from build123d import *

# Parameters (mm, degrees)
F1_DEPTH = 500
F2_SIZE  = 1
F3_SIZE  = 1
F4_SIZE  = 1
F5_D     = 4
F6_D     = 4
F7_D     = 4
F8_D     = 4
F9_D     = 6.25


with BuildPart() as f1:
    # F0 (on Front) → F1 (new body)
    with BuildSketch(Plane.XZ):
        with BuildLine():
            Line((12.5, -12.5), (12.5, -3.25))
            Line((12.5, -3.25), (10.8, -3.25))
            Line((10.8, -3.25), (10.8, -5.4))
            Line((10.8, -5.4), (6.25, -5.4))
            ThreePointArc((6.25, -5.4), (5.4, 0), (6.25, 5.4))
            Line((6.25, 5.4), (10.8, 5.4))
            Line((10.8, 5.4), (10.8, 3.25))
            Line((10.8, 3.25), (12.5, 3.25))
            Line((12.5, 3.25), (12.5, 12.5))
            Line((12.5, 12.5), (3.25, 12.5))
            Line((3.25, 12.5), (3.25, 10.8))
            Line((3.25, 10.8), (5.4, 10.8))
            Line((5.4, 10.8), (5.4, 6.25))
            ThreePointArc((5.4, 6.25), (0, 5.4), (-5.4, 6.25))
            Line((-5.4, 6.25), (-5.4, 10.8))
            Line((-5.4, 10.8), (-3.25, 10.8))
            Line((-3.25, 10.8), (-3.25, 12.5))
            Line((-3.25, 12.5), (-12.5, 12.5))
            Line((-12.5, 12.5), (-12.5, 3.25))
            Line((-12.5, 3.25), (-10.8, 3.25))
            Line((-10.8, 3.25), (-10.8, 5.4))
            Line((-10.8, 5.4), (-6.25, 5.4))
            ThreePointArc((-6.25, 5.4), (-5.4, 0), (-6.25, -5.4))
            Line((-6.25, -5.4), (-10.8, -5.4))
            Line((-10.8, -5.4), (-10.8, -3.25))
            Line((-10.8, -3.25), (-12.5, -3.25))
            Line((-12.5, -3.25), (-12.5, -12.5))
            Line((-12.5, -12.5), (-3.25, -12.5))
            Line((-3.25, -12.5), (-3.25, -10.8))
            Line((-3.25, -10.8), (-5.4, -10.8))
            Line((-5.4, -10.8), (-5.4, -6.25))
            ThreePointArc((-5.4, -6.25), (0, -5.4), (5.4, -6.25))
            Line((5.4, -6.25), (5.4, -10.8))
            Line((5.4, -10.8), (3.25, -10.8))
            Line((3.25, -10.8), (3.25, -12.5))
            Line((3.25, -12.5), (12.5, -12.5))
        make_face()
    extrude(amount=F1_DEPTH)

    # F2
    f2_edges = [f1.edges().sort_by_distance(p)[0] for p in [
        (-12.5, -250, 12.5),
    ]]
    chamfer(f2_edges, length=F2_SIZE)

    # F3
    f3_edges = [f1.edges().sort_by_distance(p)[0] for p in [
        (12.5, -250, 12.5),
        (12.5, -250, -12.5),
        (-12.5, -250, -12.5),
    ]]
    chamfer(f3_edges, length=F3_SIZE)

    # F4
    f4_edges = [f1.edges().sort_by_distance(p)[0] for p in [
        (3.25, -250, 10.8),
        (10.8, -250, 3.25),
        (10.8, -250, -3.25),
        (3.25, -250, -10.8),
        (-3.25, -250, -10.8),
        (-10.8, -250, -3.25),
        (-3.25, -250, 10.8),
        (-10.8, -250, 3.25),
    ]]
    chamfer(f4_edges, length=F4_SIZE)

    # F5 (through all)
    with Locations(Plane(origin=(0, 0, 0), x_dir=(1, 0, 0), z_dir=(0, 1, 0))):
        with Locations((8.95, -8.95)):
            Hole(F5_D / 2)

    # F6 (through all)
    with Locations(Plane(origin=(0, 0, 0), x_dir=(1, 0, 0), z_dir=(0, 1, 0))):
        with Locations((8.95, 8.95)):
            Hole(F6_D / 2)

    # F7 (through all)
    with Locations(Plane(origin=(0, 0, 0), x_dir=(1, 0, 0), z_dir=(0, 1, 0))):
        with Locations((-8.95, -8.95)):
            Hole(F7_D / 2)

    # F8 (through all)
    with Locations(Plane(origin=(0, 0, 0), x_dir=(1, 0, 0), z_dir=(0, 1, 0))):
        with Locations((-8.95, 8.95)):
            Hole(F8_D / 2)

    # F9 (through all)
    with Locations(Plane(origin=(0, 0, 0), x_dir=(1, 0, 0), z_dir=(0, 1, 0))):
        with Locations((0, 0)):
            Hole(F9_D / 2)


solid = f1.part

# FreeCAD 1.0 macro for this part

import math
import FreeCAD as App
import Part
import Sketcher
Q = App.Units.Quantity


def edges_at(feature, points):
    """Names of the edges that pass closest to the given points."""
    edges = feature.Shape.Edges
    near = lambda p: min(range(len(edges)), key=lambda i: edges[i].distToShape(Part.Vertex(*p))[0])
    return sorted({f"Edge{near(p) + 1}" for p in points})

doc = App.newDocument("Part")
params = doc.addObject("Spreadsheet::Sheet", "Params")
for row, (alias, value) in enumerate([
    ("sketch1_width", "1.7 mm"),
    ("sketch1_width2", "4.55 mm"),
    ("sketch1_width3", "2.15 mm"),
    ("pad1_length", "500 mm"),
    ("chamfer_size", "1 mm"),
    ("chamfer2_size", "1 mm"),
    ("chamfer3_size", "1 mm"),
    ("sketch2_diameter", "4 mm"),
    ("hole_diameter", "4 mm"),
    ("sketch3_diameter", "4 mm"),
    ("hole2_diameter", "4 mm"),
    ("sketch4_diameter", "4 mm"),
    ("hole3_diameter", "4 mm"),
    ("sketch5_diameter", "4 mm"),
    ("hole4_diameter", "4 mm"),
    ("sketch6_diameter", "6.25 mm"),
    ("hole5_diameter", "6.25 mm"),
], start=1):
    params.set(f"A{row}", alias)
    params.set(f"B{row}", "=" + value)
    params.setAlias(f"B{row}", alias)

body = doc.addObject("PartDesign::Body", "Body")

sketch1 = body.newObject("Sketcher::SketchObject", "Sketch")
sketch1.AttachmentSupport = (doc.getObject("XZ_Plane"), [""])
sketch1.MapMode = "FlatFace"
sketch1.addGeometry(Part.LineSegment(App.Vector(12.5, -12.5, 0), App.Vector(12.5, -3.2, 0)), False)
sketch1.addGeometry(Part.LineSegment(App.Vector(12.5, -3.2, 0), App.Vector(10.8, -3.2, 0)), False)
sketch1.addGeometry(Part.LineSegment(App.Vector(10.8, -3.2, 0), App.Vector(10.8, -5.4, 0)), False)
sketch1.addGeometry(Part.LineSegment(App.Vector(10.8, -5.4, 0), App.Vector(6.2, -5.4, 0)), False)
sketch1.addGeometry(Part.ArcOfCircle(Part.Circle(App.Vector(23, 0, 0), App.Vector(0, 0, 1), 17.6), math.radians(162), math.radians(198)), False)
sketch1.addGeometry(Part.LineSegment(App.Vector(6.2, 5.4, 0), App.Vector(10.8, 5.4, 0)), False)
sketch1.addGeometry(Part.LineSegment(App.Vector(10.8, 5.4, 0), App.Vector(10.8, 3.2, 0)), False)
sketch1.addGeometry(Part.LineSegment(App.Vector(10.8, 3.2, 0), App.Vector(12.5, 3.2, 0)), False)
sketch1.addGeometry(Part.LineSegment(App.Vector(12.5, 3.2, 0), App.Vector(12.5, 12.5, 0)), False)
sketch1.addGeometry(Part.LineSegment(App.Vector(12.5, 12.5, 0), App.Vector(3.2, 12.5, 0)), False)
sketch1.addGeometry(Part.LineSegment(App.Vector(3.2, 12.5, 0), App.Vector(3.2, 10.8, 0)), False)
sketch1.addGeometry(Part.LineSegment(App.Vector(3.2, 10.8, 0), App.Vector(5.4, 10.8, 0)), False)
sketch1.addGeometry(Part.LineSegment(App.Vector(5.4, 10.8, 0), App.Vector(5.4, 6.2, 0)), False)
sketch1.addGeometry(Part.ArcOfCircle(Part.Circle(App.Vector(0, 23, 0), App.Vector(0, 0, 1), 17.6), math.radians(-108), math.radians(-72)), False)
sketch1.addGeometry(Part.LineSegment(App.Vector(-5.4, 6.2, 0), App.Vector(-5.4, 10.8, 0)), False)
sketch1.addGeometry(Part.LineSegment(App.Vector(-5.4, 10.8, 0), App.Vector(-3.2, 10.8, 0)), False)
sketch1.addGeometry(Part.LineSegment(App.Vector(-3.2, 10.8, 0), App.Vector(-3.2, 12.5, 0)), False)
sketch1.addGeometry(Part.LineSegment(App.Vector(-3.2, 12.5, 0), App.Vector(-12.5, 12.5, 0)), False)
sketch1.addGeometry(Part.LineSegment(App.Vector(-12.5, 12.5, 0), App.Vector(-12.5, 3.2, 0)), False)
sketch1.addGeometry(Part.LineSegment(App.Vector(-12.5, 3.2, 0), App.Vector(-10.8, 3.2, 0)), False)
sketch1.addGeometry(Part.LineSegment(App.Vector(-10.8, 3.2, 0), App.Vector(-10.8, 5.4, 0)), False)
sketch1.addGeometry(Part.LineSegment(App.Vector(-10.8, 5.4, 0), App.Vector(-6.2, 5.4, 0)), False)
sketch1.addGeometry(Part.ArcOfCircle(Part.Circle(App.Vector(-23, 0, 0), App.Vector(0, 0, 1), 17.6), math.radians(-18), math.radians(18)), False)
sketch1.addGeometry(Part.LineSegment(App.Vector(-6.2, -5.4, 0), App.Vector(-10.8, -5.4, 0)), False)
sketch1.addGeometry(Part.LineSegment(App.Vector(-10.8, -5.4, 0), App.Vector(-10.8, -3.2, 0)), False)
sketch1.addGeometry(Part.LineSegment(App.Vector(-10.8, -3.2, 0), App.Vector(-12.5, -3.2, 0)), False)
sketch1.addGeometry(Part.LineSegment(App.Vector(-12.5, -3.2, 0), App.Vector(-12.5, -12.5, 0)), False)
sketch1.addGeometry(Part.LineSegment(App.Vector(-12.5, -12.5, 0), App.Vector(-3.2, -12.5, 0)), False)
sketch1.addGeometry(Part.LineSegment(App.Vector(-3.2, -12.5, 0), App.Vector(-3.2, -10.8, 0)), False)
sketch1.addGeometry(Part.LineSegment(App.Vector(-3.2, -10.8, 0), App.Vector(-5.4, -10.8, 0)), False)
sketch1.addGeometry(Part.LineSegment(App.Vector(-5.4, -10.8, 0), App.Vector(-5.4, -6.2, 0)), False)
sketch1.addGeometry(Part.ArcOfCircle(Part.Circle(App.Vector(0, -23, 0), App.Vector(0, 0, 1), 17.6), math.radians(72), math.radians(108)), False)
sketch1.addGeometry(Part.LineSegment(App.Vector(5.4, -6.2, 0), App.Vector(5.4, -10.8, 0)), False)
sketch1.addGeometry(Part.LineSegment(App.Vector(5.4, -10.8, 0), App.Vector(3.2, -10.8, 0)), False)
sketch1.addGeometry(Part.LineSegment(App.Vector(3.2, -10.8, 0), App.Vector(3.2, -12.5, 0)), False)
sketch1.addGeometry(Part.LineSegment(App.Vector(3.2, -12.5, 0), App.Vector(12.5, -12.5, 0)), False)
sketch1.addConstraint(Sketcher.Constraint("Coincident", 0, 2, 1, 1))
sketch1.addConstraint(Sketcher.Constraint("Coincident", 1, 2, 2, 1))
sketch1.addConstraint(Sketcher.Constraint("Coincident", 2, 2, 3, 1))
sketch1.addConstraint(Sketcher.Constraint("Coincident", 3, 2, 4, 2))
sketch1.addConstraint(Sketcher.Constraint("Coincident", 4, 1, 5, 1))
sketch1.addConstraint(Sketcher.Constraint("Coincident", 5, 2, 6, 1))
sketch1.addConstraint(Sketcher.Constraint("Coincident", 6, 2, 7, 1))
sketch1.addConstraint(Sketcher.Constraint("Coincident", 7, 2, 8, 1))
sketch1.addConstraint(Sketcher.Constraint("Coincident", 8, 2, 9, 1))
sketch1.addConstraint(Sketcher.Constraint("Coincident", 9, 2, 10, 1))
sketch1.addConstraint(Sketcher.Constraint("Coincident", 10, 2, 11, 1))
sketch1.addConstraint(Sketcher.Constraint("Coincident", 11, 2, 12, 1))
sketch1.addConstraint(Sketcher.Constraint("Coincident", 12, 2, 13, 2))
sketch1.addConstraint(Sketcher.Constraint("Coincident", 13, 1, 14, 1))
sketch1.addConstraint(Sketcher.Constraint("Coincident", 14, 2, 15, 1))
sketch1.addConstraint(Sketcher.Constraint("Coincident", 15, 2, 16, 1))
sketch1.addConstraint(Sketcher.Constraint("Coincident", 16, 2, 17, 1))
sketch1.addConstraint(Sketcher.Constraint("Coincident", 17, 2, 18, 1))
sketch1.addConstraint(Sketcher.Constraint("Coincident", 18, 2, 19, 1))
sketch1.addConstraint(Sketcher.Constraint("Coincident", 19, 2, 20, 1))
sketch1.addConstraint(Sketcher.Constraint("Coincident", 20, 2, 21, 1))
sketch1.addConstraint(Sketcher.Constraint("Coincident", 21, 2, 22, 2))
sketch1.addConstraint(Sketcher.Constraint("Coincident", 22, 1, 23, 1))
sketch1.addConstraint(Sketcher.Constraint("Coincident", 23, 2, 24, 1))
sketch1.addConstraint(Sketcher.Constraint("Coincident", 24, 2, 25, 1))
sketch1.addConstraint(Sketcher.Constraint("Coincident", 25, 2, 26, 1))
sketch1.addConstraint(Sketcher.Constraint("Coincident", 26, 2, 27, 1))
sketch1.addConstraint(Sketcher.Constraint("Coincident", 27, 2, 28, 1))
sketch1.addConstraint(Sketcher.Constraint("Coincident", 28, 2, 29, 1))
sketch1.addConstraint(Sketcher.Constraint("Coincident", 29, 2, 30, 1))
sketch1.addConstraint(Sketcher.Constraint("Coincident", 30, 2, 31, 2))
sketch1.addConstraint(Sketcher.Constraint("Coincident", 31, 1, 32, 1))
sketch1.addConstraint(Sketcher.Constraint("Coincident", 32, 2, 33, 1))
sketch1.addConstraint(Sketcher.Constraint("Coincident", 33, 2, 34, 1))
sketch1.addConstraint(Sketcher.Constraint("Coincident", 34, 2, 35, 1))
sketch1.addConstraint(Sketcher.Constraint("Coincident", 35, 2, 0, 1))
sketch1.addConstraint(Sketcher.Constraint("Vertical", 0))
sketch1.addConstraint(Sketcher.Constraint("Horizontal", 1))
sketch1.addConstraint(Sketcher.Constraint("Vertical", 2))
sketch1.addConstraint(Sketcher.Constraint("Horizontal", 3))
sketch1.addConstraint(Sketcher.Constraint("Horizontal", 5))
sketch1.addConstraint(Sketcher.Constraint("Vertical", 6))
sketch1.addConstraint(Sketcher.Constraint("Horizontal", 7))
sketch1.addConstraint(Sketcher.Constraint("Vertical", 8))
sketch1.addConstraint(Sketcher.Constraint("Horizontal", 9))
sketch1.addConstraint(Sketcher.Constraint("Vertical", 10))
sketch1.addConstraint(Sketcher.Constraint("Horizontal", 11))
sketch1.addConstraint(Sketcher.Constraint("Vertical", 12))
sketch1.addConstraint(Sketcher.Constraint("Vertical", 14))
sketch1.addConstraint(Sketcher.Constraint("Horizontal", 15))
sketch1.addConstraint(Sketcher.Constraint("Vertical", 16))
sketch1.addConstraint(Sketcher.Constraint("Horizontal", 17))
sketch1.addConstraint(Sketcher.Constraint("Vertical", 18))
sketch1.addConstraint(Sketcher.Constraint("Horizontal", 19))
sketch1.addConstraint(Sketcher.Constraint("Vertical", 20))
sketch1.addConstraint(Sketcher.Constraint("Horizontal", 21))
sketch1.addConstraint(Sketcher.Constraint("Horizontal", 23))
sketch1.addConstraint(Sketcher.Constraint("Vertical", 24))
sketch1.addConstraint(Sketcher.Constraint("Horizontal", 25))
sketch1.addConstraint(Sketcher.Constraint("Vertical", 26))
sketch1.addConstraint(Sketcher.Constraint("Horizontal", 27))
sketch1.addConstraint(Sketcher.Constraint("Vertical", 28))
sketch1.addConstraint(Sketcher.Constraint("Horizontal", 29))
sketch1.addConstraint(Sketcher.Constraint("Vertical", 30))
sketch1.addConstraint(Sketcher.Constraint("Vertical", 32))
sketch1.addConstraint(Sketcher.Constraint("Horizontal", 33))
sketch1.addConstraint(Sketcher.Constraint("Vertical", 34))
sketch1.addConstraint(Sketcher.Constraint("Horizontal", 35))
sketch1.addConstraint(Sketcher.Constraint("Equal", 4, 13))
sketch1.addConstraint(Sketcher.Constraint("Equal", 13, 22))
sketch1.addConstraint(Sketcher.Constraint("Equal", 22, 31))
sketch1.addConstraint(Sketcher.Constraint("Symmetric", 4, 3, 22, 3, -1, 1))
sketch1.addConstraint(Sketcher.Constraint("Symmetric", 13, 3, 31, 3, -1, 1))
sketch1.addConstraint(Sketcher.Constraint("Symmetric", 0, 2, 18, 2, -1, 1))
sketch1.addConstraint(Sketcher.Constraint("Symmetric", 2, 2, 20, 2, -1, 1))
sketch1.addConstraint(Sketcher.Constraint("Symmetric", 5, 2, 23, 2, -1, 1))
sketch1.addConstraint(Sketcher.Constraint("Symmetric", 7, 2, 25, 2, -1, 1))
sketch1.addConstraint(Sketcher.Constraint("Symmetric", 9, 2, 27, 2, -1, 1))
sketch1.addConstraint(Sketcher.Constraint("Symmetric", 11, 2, 29, 2, -1, 1))
sketch1.addConstraint(Sketcher.Constraint("Symmetric", 14, 2, 32, 2, -1, 1))
sketch1.addConstraint(Sketcher.Constraint("Symmetric", 16, 2, 34, 2, -1, 1))
sketch1.addConstraint(Sketcher.Constraint("Symmetric", 12, 2, 13, 1, -2))
sketch1.addConstraint(Sketcher.Constraint("Symmetric", 10, 2, 15, 2, -2))
sketch1.addConstraint(Sketcher.Constraint("Symmetric", 8, 2, 17, 2, -2))
sketch1.addConstraint(Sketcher.Constraint("Symmetric", 6, 2, 19, 2, -2))
sketch1.addConstraint(Sketcher.Constraint("Symmetric", 4, 1, 21, 2, -2))
sketch1.addConstraint(Sketcher.Constraint("Equal", 35, 0))
sketch1.addConstraint(Sketcher.Constraint("Equal", 33, 2))
sketch1.addConstraint(Sketcher.Constraint("Equal", 25, 10))
sketch1.addConstraint(Sketcher.Constraint("Equal", 23, 12))
sketch1.addConstraint(Sketcher.Constraint("DistanceX", 1, 2, 1, 1, Q("1.7 mm")))
sketch1.addConstraint(Sketcher.Constraint("DistanceX", 9, 2, 4, 1, Q("3 mm")))
sketch1.addConstraint(Sketcher.Constraint("DistanceX", 3, 2, 3, 1, Q("4.55 mm")))
sketch1.addConstraint(Sketcher.Constraint("DistanceX", 11, 1, 11, 2, Q("2.15 mm")))
sketch1.addConstraint(Sketcher.Constraint("DistanceX", -1, 1, 0, 2, Q("12.5 mm")))
sketch1.addConstraint(Sketcher.Constraint("DistanceY", 2, 2, -1, 1, Q("5.4 mm")))
sketch1.addConstraint(Sketcher.Constraint("Radius", 4, Q("17.577941 mm")))
sketch1.setExpression("Constraints[90]", "Params.sketch1_width")
sketch1.setExpression("Constraints[92]", "Params.sketch1_width2")
sketch1.setExpression("Constraints[93]", "Params.sketch1_width3")
pad1 = body.newObject("PartDesign::Pad", "Pad")
pad1.Profile = sketch1
pad1.setExpression("Length", "Params.pad1_length")
doc.recompute()

chamfer = body.newObject("PartDesign::Chamfer", "Chamfer")
chamfer.Base = (pad1, edges_at(pad1, [(-12.5, -250, 12.5)]))
chamfer.setExpression("Size", "Params.chamfer_size")
doc.recompute()

chamfer2 = body.newObject("PartDesign::Chamfer", "Chamfer001")
chamfer2.Base = (chamfer, edges_at(chamfer, [(12.5, -250, 12.5), (12.5, -250, -12.5), (-12.5, -250, -12.5)]))
chamfer2.setExpression("Size", "Params.chamfer2_size")
doc.recompute()

chamfer3 = body.newObject("PartDesign::Chamfer", "Chamfer002")
chamfer3.Base = (chamfer2, edges_at(chamfer2, [
    (3.25, -250, 10.8),
    (10.8, -250, 3.25),
    (10.8, -250, -3.25),
    (3.25, -250, -10.8),
    (-3.25, -250, -10.8),
    (-10.8, -250, -3.25),
    (-3.25, -250, 10.8),
    (-10.8, -250, 3.25),
]))
chamfer3.setExpression("Size", "Params.chamfer3_size")

sketch2 = body.newObject("Sketcher::SketchObject", "Sketch001")
sketch2.AttachmentSupport = (doc.getObject("XZ_Plane"), [""])
sketch2.MapMode = "FlatFace"
sketch2.addGeometry(Part.Circle(App.Vector(8.9, 8.9, 0), App.Vector(0, 0, 1), 2), False)
sketch2.addConstraint(Sketcher.Constraint("Diameter", 0, Q("4 mm")))
sketch2.addConstraint(Sketcher.Constraint("DistanceX", -1, 1, 0, 3, Q("8.95 mm")))
sketch2.addConstraint(Sketcher.Constraint("DistanceY", -1, 1, 0, 3, Q("8.95 mm")))
sketch2.setExpression("Constraints[0]", "Params.sketch2_diameter")
doc.recompute()
hole = body.newObject("PartDesign::Hole", "Hole")
hole.Profile = sketch2
hole.ThreadType = "None"
hole.setExpression("Diameter", "Params.hole_diameter")
hole.DepthType = "ThroughAll"
hole.Reversed = True

sketch3 = body.newObject("Sketcher::SketchObject", "Sketch002")
sketch3.AttachmentSupport = (doc.getObject("XZ_Plane"), [""])
sketch3.MapMode = "FlatFace"
sketch3.addGeometry(Part.Circle(App.Vector(8.9, -8.9, 0), App.Vector(0, 0, 1), 2), False)
sketch3.addConstraint(Sketcher.Constraint("Diameter", 0, Q("4 mm")))
sketch3.addConstraint(Sketcher.Constraint("DistanceX", -1, 1, 0, 3, Q("8.95 mm")))
sketch3.addConstraint(Sketcher.Constraint("DistanceY", 0, 3, -1, 1, Q("8.95 mm")))
sketch3.setExpression("Constraints[0]", "Params.sketch3_diameter")
doc.recompute()
hole2 = body.newObject("PartDesign::Hole", "Hole001")
hole2.Profile = sketch3
hole2.ThreadType = "None"
hole2.setExpression("Diameter", "Params.hole2_diameter")
hole2.DepthType = "ThroughAll"
hole2.Reversed = True

sketch4 = body.newObject("Sketcher::SketchObject", "Sketch003")
sketch4.AttachmentSupport = (doc.getObject("XZ_Plane"), [""])
sketch4.MapMode = "FlatFace"
sketch4.addGeometry(Part.Circle(App.Vector(-8.9, 8.9, 0), App.Vector(0, 0, 1), 2), False)
sketch4.addConstraint(Sketcher.Constraint("Diameter", 0, Q("4 mm")))
sketch4.addConstraint(Sketcher.Constraint("DistanceX", 0, 3, -1, 1, Q("8.95 mm")))
sketch4.addConstraint(Sketcher.Constraint("DistanceY", -1, 1, 0, 3, Q("8.95 mm")))
sketch4.setExpression("Constraints[0]", "Params.sketch4_diameter")
doc.recompute()
hole3 = body.newObject("PartDesign::Hole", "Hole002")
hole3.Profile = sketch4
hole3.ThreadType = "None"
hole3.setExpression("Diameter", "Params.hole3_diameter")
hole3.DepthType = "ThroughAll"
hole3.Reversed = True

sketch5 = body.newObject("Sketcher::SketchObject", "Sketch004")
sketch5.AttachmentSupport = (doc.getObject("XZ_Plane"), [""])
sketch5.MapMode = "FlatFace"
sketch5.addGeometry(Part.Circle(App.Vector(-8.9, -8.9, 0), App.Vector(0, 0, 1), 2), False)
sketch5.addConstraint(Sketcher.Constraint("Diameter", 0, Q("4 mm")))
sketch5.addConstraint(Sketcher.Constraint("DistanceX", 0, 3, -1, 1, Q("8.95 mm")))
sketch5.addConstraint(Sketcher.Constraint("DistanceY", 0, 3, -1, 1, Q("8.95 mm")))
sketch5.setExpression("Constraints[0]", "Params.sketch5_diameter")
doc.recompute()
hole4 = body.newObject("PartDesign::Hole", "Hole003")
hole4.Profile = sketch5
hole4.ThreadType = "None"
hole4.setExpression("Diameter", "Params.hole4_diameter")
hole4.DepthType = "ThroughAll"
hole4.Reversed = True

sketch6 = body.newObject("Sketcher::SketchObject", "Sketch005")
sketch6.AttachmentSupport = (doc.getObject("XZ_Plane"), [""])
sketch6.MapMode = "FlatFace"
sketch6.addGeometry(Part.Circle(App.Vector(0, 0, 0), App.Vector(0, 0, 1), 3.1), False)
sketch6.addConstraint(Sketcher.Constraint("Coincident", 0, 3, -1, 1))
sketch6.addConstraint(Sketcher.Constraint("Diameter", 0, Q("6.25 mm")))
sketch6.setExpression("Constraints[1]", "Params.sketch6_diameter")
doc.recompute()
hole5 = body.newObject("PartDesign::Hole", "Hole004")
hole5.Profile = sketch6
hole5.ThreadType = "None"
hole5.setExpression("Diameter", "Params.hole5_diameter")
hole5.DepthType = "ThroughAll"
hole5.Reversed = True

doc.recompute()
